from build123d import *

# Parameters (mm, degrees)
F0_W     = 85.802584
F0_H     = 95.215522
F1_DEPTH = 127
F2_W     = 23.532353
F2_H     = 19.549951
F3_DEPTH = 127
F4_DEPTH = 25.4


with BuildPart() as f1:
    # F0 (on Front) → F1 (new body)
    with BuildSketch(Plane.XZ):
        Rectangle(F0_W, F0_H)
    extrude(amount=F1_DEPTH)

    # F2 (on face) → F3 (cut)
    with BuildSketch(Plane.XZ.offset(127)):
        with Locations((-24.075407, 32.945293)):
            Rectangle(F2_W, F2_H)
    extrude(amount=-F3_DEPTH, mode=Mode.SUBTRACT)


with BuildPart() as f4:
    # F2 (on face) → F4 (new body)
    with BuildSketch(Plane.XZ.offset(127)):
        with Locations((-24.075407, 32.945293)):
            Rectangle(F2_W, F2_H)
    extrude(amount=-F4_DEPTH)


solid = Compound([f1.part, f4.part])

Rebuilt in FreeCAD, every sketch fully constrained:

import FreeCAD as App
import Part
import Sketcher

V = App.Vector
Q = App.Units.Quantity

doc = App.newDocument("Part")
body = doc.addObject("PartDesign::Body", "Body")

# Sketch on XZ plane
sketch1 = body.newObject("Sketcher::SketchObject", "Sketch")
sketch1.AttachmentSupport = (doc.getObject("XZ_Plane"), [""])
sketch1.MapMode = "FlatFace"
sketch1.addGeometry(Part.LineSegment(V(-42.901292, 47.607761, 0), V(-42.901292, -47.607761, 0)), False)
sketch1.addGeometry(Part.LineSegment(V(-42.901292, -47.607761, 0), V(42.901292, -47.607761, 0)), False)
sketch1.addGeometry(Part.LineSegment(V(42.901292, -47.607761, 0), V(42.901292, 47.607761, 0)), False)
sketch1.addGeometry(Part.LineSegment(V(42.901292, 47.607761, 0), V(-42.901292, 47.607761, 0)), False)
sketch1.addConstraint(Sketcher.Constraint("Coincident", 0, 2, 1, 1))
sketch1.addConstraint(Sketcher.Constraint("Coincident", 1, 2, 2, 1))
sketch1.addConstraint(Sketcher.Constraint("Coincident", 2, 2, 3, 1))
sketch1.addConstraint(Sketcher.Constraint("Coincident", 3, 2, 0, 1))
sketch1.addConstraint(Sketcher.Constraint("Vertical", 0))
sketch1.addConstraint(Sketcher.Constraint("Horizontal", 1))
sketch1.addConstraint(Sketcher.Constraint("Vertical", 2))
sketch1.addConstraint(Sketcher.Constraint("Horizontal", 3))
sketch1.addConstraint(Sketcher.Constraint("Symmetric", 0, 2, 2, 2, -1, 1))
sketch1.addConstraint(Sketcher.Constraint("DistanceX", 1, 1, 1, 2, 85.802584))
sketch1.addConstraint(Sketcher.Constraint("DistanceY", 0, 2, 0, 1, 95.215522))
pad1 = body.newObject("PartDesign::Pad", "Pad")
pad1.Profile = sketch1
pad1.Length = Q("5 in")

# Sketch on XZ plane
sketch2 = body.newObject("Sketcher::SketchObject", "Sketch001")
sketch2.AttachmentSupport = (doc.getObject("XZ_Plane"), [""])
sketch2.MapMode = "FlatFace"
sketch2.AttachmentOffset = App.Placement(V(0, 0, 5 * 25.4), App.Rotation())
sketch2.addGeometry(Part.LineSegment(V(-35.841583, 42.720269, 0), V(-35.841583, 23.170317, 0)), False)
sketch2.addGeometry(Part.LineSegment(V(-35.841583, 23.170317, 0), V(-12.30923, 23.170317, 0)), False)
sketch2.addGeometry(Part.LineSegment(V(-12.30923, 23.170317, 0), V(-12.30923, 42.720269, 0)), False)
sketch2.addGeometry(Part.LineSegment(V(-12.30923, 42.720269, 0), V(-35.841583, 42.720269, 0)), False)
sketch2.addConstraint(Sketcher.Constraint("Coincident", 0, 2, 1, 1))
sketch2.addConstraint(Sketcher.Constraint("Coincident", 1, 2, 2, 1))
sketch2.addConstraint(Sketcher.Constraint("Coincident", 2, 2, 3, 1))
sketch2.addConstraint(Sketcher.Constraint("Coincident", 3, 2, 0, 1))
sketch2.addConstraint(Sketcher.Constraint("Vertical", 0))
sketch2.addConstraint(Sketcher.Constraint("Horizontal", 1))
sketch2.addConstraint(Sketcher.Constraint("Vertical", 2))
sketch2.addConstraint(Sketcher.Constraint("Horizontal", 3))
sketch2.addConstraint(Sketcher.Constraint("DistanceY", 0, 2, 0, 1, 19.549951))
sketch2.addConstraint(Sketcher.Constraint("DistanceX", 1, 1, 1, 2, 23.532353))
sketch2.addConstraint(Sketcher.Constraint("DistanceX", 1, 2, -1, 1, 12.30923))
sketch2.addConstraint(Sketcher.Constraint("DistanceY", -1, 1, 2, 2, 42.720269))
pocket1 = body.newObject("PartDesign::Pocket", "Pocket")
pocket1.Profile = sketch2
pocket1.Length = Q("5 in")
body2 = doc.addObject("PartDesign::Body", "Body001")

# Sketch on XZ plane
sketch3 = body2.newObject("Sketcher::SketchObject", "Sketch002")
sketch3.AttachmentSupport = (doc.getObject("XZ_Plane001"), [""])
sketch3.MapMode = "FlatFace"
sketch3.AttachmentOffset = App.Placement(V(0, 0, 5 * 25.4), App.Rotation())
sketch3.addGeometry(Part.LineSegment(V(-35.841583, 42.720269, 0), V(-35.841583, 23.170317, 0)), False)
sketch3.addGeometry(Part.LineSegment(V(-35.841583, 23.170317, 0), V(-12.30923, 23.170317, 0)), False)
sketch3.addGeometry(Part.LineSegment(V(-12.30923, 23.170317, 0), V(-12.30923, 42.720269, 0)), False)
sketch3.addGeometry(Part.LineSegment(V(-12.30923, 42.720269, 0), V(-35.841583, 42.720269, 0)), False)
sketch3.addConstraint(Sketcher.Constraint("Coincident", 0, 2, 1, 1))
sketch3.addConstraint(Sketcher.Constraint("Coincident", 1, 2, 2, 1))
sketch3.addConstraint(Sketcher.Constraint("Coincident", 2, 2, 3, 1))
sketch3.addConstraint(Sketcher.Constraint("Coincident", 3, 2, 0, 1))
sketch3.addConstraint(Sketcher.Constraint("Vertical", 0))
sketch3.addConstraint(Sketcher.Constraint("Horizontal", 1))
sketch3.addConstraint(Sketcher.Constraint("Vertical", 2))
sketch3.addConstraint(Sketcher.Constraint("Horizontal", 3))
sketch3.addConstraint(Sketcher.Constraint("DistanceY", 0, 2, 0, 1, 19.549951))
sketch3.addConstraint(Sketcher.Constraint("DistanceX", 1, 1, 1, 2, 23.532353))
sketch3.addConstraint(Sketcher.Constraint("DistanceX", 1, 2, -1, 1, 12.30923))
sketch3.addConstraint(Sketcher.Constraint("DistanceY", -1, 1, 2, 2, 42.720269))
pad2 = body2.newObject("PartDesign::Pad", "Pad001")
pad2.Profile = sketch3
pad2.Length = Q("1 in")
pad2.Reversed = True

doc.recompute()
